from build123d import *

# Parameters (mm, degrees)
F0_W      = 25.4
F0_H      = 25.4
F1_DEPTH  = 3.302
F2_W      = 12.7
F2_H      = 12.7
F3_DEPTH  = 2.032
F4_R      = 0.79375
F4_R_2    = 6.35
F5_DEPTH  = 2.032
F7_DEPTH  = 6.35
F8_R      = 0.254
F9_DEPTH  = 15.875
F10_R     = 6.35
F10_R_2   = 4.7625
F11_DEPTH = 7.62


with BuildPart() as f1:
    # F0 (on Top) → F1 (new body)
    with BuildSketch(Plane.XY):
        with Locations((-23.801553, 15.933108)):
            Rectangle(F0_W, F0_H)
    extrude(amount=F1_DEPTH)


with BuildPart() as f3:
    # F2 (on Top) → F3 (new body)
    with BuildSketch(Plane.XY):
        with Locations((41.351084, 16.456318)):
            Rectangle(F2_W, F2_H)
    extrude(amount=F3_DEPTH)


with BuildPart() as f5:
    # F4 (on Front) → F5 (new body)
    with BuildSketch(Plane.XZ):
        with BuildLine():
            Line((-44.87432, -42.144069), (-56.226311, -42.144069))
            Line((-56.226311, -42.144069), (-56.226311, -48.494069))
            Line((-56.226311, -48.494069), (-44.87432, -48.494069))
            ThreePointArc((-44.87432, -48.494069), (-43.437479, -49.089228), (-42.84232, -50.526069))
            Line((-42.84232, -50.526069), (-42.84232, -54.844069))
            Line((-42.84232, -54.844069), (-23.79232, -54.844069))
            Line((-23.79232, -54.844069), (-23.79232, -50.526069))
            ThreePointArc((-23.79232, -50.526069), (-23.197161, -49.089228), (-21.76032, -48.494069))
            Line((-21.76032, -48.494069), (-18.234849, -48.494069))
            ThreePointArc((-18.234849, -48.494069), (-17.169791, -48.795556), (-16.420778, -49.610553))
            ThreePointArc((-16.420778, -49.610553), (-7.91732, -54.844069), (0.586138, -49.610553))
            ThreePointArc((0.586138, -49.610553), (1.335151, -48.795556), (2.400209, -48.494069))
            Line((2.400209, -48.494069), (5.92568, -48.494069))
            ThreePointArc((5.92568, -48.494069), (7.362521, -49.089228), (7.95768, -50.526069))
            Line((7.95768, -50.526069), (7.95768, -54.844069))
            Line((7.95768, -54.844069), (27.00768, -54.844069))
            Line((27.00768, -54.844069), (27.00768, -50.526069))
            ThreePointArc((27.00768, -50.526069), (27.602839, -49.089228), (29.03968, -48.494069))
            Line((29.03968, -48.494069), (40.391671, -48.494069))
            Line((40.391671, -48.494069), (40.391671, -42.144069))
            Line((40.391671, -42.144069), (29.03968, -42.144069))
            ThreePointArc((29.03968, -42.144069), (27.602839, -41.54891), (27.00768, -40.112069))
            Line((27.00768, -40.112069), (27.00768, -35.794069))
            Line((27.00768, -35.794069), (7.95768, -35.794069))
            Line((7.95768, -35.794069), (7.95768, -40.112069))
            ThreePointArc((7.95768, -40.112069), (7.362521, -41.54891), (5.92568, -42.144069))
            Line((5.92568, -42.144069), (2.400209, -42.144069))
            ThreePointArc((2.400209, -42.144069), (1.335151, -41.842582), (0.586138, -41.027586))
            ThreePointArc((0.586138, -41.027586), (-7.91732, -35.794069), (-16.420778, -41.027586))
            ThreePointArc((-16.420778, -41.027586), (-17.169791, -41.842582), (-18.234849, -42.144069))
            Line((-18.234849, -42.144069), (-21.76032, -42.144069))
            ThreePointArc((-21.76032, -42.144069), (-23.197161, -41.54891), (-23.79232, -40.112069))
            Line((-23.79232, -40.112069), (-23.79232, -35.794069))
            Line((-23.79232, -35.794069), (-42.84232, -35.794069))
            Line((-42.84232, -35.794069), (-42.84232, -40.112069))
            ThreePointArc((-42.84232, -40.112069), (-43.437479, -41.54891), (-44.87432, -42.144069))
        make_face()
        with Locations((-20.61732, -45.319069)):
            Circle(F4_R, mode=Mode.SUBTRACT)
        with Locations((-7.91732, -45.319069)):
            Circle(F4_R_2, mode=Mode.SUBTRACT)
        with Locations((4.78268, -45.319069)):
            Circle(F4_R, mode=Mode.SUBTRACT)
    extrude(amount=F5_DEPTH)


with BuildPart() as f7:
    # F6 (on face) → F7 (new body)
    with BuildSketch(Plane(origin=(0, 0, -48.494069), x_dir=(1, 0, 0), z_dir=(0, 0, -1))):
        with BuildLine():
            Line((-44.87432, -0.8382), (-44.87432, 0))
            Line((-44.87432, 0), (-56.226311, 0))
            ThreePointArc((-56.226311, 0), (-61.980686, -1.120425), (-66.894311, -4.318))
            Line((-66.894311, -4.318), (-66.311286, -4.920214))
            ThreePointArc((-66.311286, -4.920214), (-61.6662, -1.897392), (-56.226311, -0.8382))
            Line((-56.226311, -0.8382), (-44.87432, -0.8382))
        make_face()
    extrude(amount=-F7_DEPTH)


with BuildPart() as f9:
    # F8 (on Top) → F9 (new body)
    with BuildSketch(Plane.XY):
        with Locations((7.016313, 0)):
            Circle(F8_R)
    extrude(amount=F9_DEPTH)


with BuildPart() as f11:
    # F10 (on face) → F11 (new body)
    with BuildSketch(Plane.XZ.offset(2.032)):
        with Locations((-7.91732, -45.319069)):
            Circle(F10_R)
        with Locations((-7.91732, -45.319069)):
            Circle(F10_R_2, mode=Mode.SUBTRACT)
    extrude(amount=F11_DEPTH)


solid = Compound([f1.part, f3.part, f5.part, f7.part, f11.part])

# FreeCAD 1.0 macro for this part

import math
import FreeCAD as App
import Part
import Sketcher
from FreeCAD import Vector
Q = App.Units.Quantity

doc = App.newDocument("Part")
body = doc.addObject("PartDesign::Body", "Body")

sketch1 = body.newObject("Sketcher::SketchObject", "Sketch")
sketch1.AttachmentSupport = (doc.getObject("XY_Plane"), [""])
sketch1.MapMode = "FlatFace"
sketch1.addGeometry([
    Part.LineSegment(Vector(-36.501553, 28.633108, 0), Vector(-36.501553, 3.233108, 0)),
    Part.LineSegment(Vector(-36.501553, 3.233108, 0), Vector(-11.101553, 3.233108, 0)),
    Part.LineSegment(Vector(-11.101553, 3.233108, 0), Vector(-11.101553, 28.633108, 0)),
    Part.LineSegment(Vector(-11.101553, 28.633108, 0), Vector(-36.501553, 28.633108, 0)),
], False)
sketch1.addConstraint([
    Sketcher.Constraint("Coincident", 0, 2, 1, 1),
    Sketcher.Constraint("Coincident", 1, 2, 2, 1),
    Sketcher.Constraint("Coincident", 2, 2, 3, 1),
    Sketcher.Constraint("Coincident", 3, 2, 0, 1),
    Sketcher.Constraint("Vertical", 0),
    Sketcher.Constraint("Horizontal", 1),
    Sketcher.Constraint("Vertical", 2),
    Sketcher.Constraint("Horizontal", 3),
    Sketcher.Constraint("Equal", 3, 0),
    Sketcher.Constraint("DistanceX", 1, 1, 1, 2, Q("1 in")),
    Sketcher.Constraint("DistanceY", -1, 1, 0, 2, Q("3.233108 mm")),
    Sketcher.Constraint("DistanceX", 0, 2, -1, 1, Q("36.501553 mm")),
])
pad1 = body.newObject("PartDesign::Pad", "Pad")
pad1.Profile = sketch1
pad1.Length = Q("0.13 in")
body2 = doc.addObject("PartDesign::Body", "Body001")

sketch2 = body2.newObject("Sketcher::SketchObject", "Sketch001")
sketch2.AttachmentSupport = (doc.getObject("XY_Plane001"), [""])
sketch2.MapMode = "FlatFace"
sketch2.addGeometry([
    Part.LineSegment(Vector(35.001084, 22.806318, 0), Vector(35.001084, 10.106318, 0)),
    Part.LineSegment(Vector(35.001084, 10.106318, 0), Vector(47.701084, 10.106318, 0)),
    Part.LineSegment(Vector(47.701084, 10.106318, 0), Vector(47.701084, 22.806318, 0)),
    Part.LineSegment(Vector(47.701084, 22.806318, 0), Vector(35.001084, 22.806318, 0)),
], False)
sketch2.addConstraint([
    Sketcher.Constraint("Coincident", 0, 2, 1, 1),
    Sketcher.Constraint("Coincident", 1, 2, 2, 1),
    Sketcher.Constraint("Coincident", 2, 2, 3, 1),
    Sketcher.Constraint("Coincident", 3, 2, 0, 1),
    Sketcher.Constraint("Vertical", 0),
    Sketcher.Constraint("Horizontal", 1),
    Sketcher.Constraint("Vertical", 2),
    Sketcher.Constraint("Horizontal", 3),
    Sketcher.Constraint("Equal", 3, 0),
    Sketcher.Constraint("DistanceX", 1, 1, 1, 2, Q("0.5 in")),
    Sketcher.Constraint("DistanceY", -1, 1, 2, 2, Q("22.806318 mm")),
    Sketcher.Constraint("DistanceX", -1, 1, 0, 2, Q("35.001084 mm")),
])
pad2 = body2.newObject("PartDesign::Pad", "Pad001")
pad2.Profile = sketch2
pad2.Length = Q("0.08 in")
body3 = doc.addObject("PartDesign::Body", "Body002")

sketch3 = body3.newObject("Sketcher::SketchObject", "Sketch002")
sketch3.AttachmentSupport = (doc.getObject("XZ_Plane002"), [""])
sketch3.MapMode = "FlatFace"
sketch3.addGeometry([
    Part.LineSegment(Vector(-44.87432, -42.144069, 0), Vector(-56.226311, -42.144069, 0)),
    Part.LineSegment(Vector(-56.226311, -42.144069, 0), Vector(-56.226311, -48.494069, 0)),
    Part.LineSegment(Vector(-56.226311, -48.494069, 0), Vector(-44.87432, -48.494069, 0)),
    Part.ArcOfCircle(Part.Circle(Vector(-44.87432, -50.526069, 0), Vector(0, 0, 1), 2.032), math.radians(-0.000002), math.radians(90.000002)),
    Part.LineSegment(Vector(-42.84232, -50.526069, 0), Vector(-42.84232, -54.844069, 0)),
    Part.LineSegment(Vector(-42.84232, -54.844069, 0), Vector(-23.79232, -54.844069, 0)),
    Part.LineSegment(Vector(-23.79232, -54.844069, 0), Vector(-23.79232, -50.526069, 0)),
    Part.ArcOfCircle(Part.Circle(Vector(-21.76032, -50.526069, 0), Vector(0, 0, 1), 2.032), math.radians(89.999998), math.radians(180.000002)),
    Part.LineSegment(Vector(-21.76032, -48.494069, 0), Vector(-18.234849, -48.494069, 0)),
    Part.ArcOfCircle(Part.Circle(Vector(-18.234849, -50.526069, 0), Vector(0, 0, 1), 2.032), math.radians(26.778919), math.radians(90)),
    Part.ArcOfCircle(Part.Circle(Vector(-7.91732, -45.319068, 0), Vector(0, 0, 1), 9.525001), math.radians(-153.221052), math.radians(-26.778948)),
    Part.ArcOfCircle(Part.Circle(Vector(2.400209, -50.526069, 0), Vector(0, 0, 1), 2.032), math.radians(90), math.radians(153.221081)),
    Part.LineSegment(Vector(2.400209, -48.494069, 0), Vector(5.92568, -48.494069, 0)),
    Part.ArcOfCircle(Part.Circle(Vector(5.92568, -50.526069, 0), Vector(0, 0, 1), 2.032), math.radians(-0.000002), math.radians(90.000002)),
    Part.LineSegment(Vector(7.95768, -50.526069, 0), Vector(7.95768, -54.844069, 0)),
    Part.LineSegment(Vector(7.95768, -54.844069, 0), Vector(27.00768, -54.844069, 0)),
    Part.LineSegment(Vector(27.00768, -54.844069, 0), Vector(27.00768, -50.526069, 0)),
    Part.ArcOfCircle(Part.Circle(Vector(29.03968, -50.526069, 0), Vector(0, 0, 1), 2.032), math.radians(89.999998), math.radians(180.000002)),
    Part.LineSegment(Vector(29.03968, -48.494069, 0), Vector(40.391671, -48.494069, 0)),
    Part.LineSegment(Vector(40.391671, -48.494069, 0), Vector(40.391671, -42.144069, 0)),
    Part.LineSegment(Vector(40.391671, -42.144069, 0), Vector(29.03968, -42.144069, 0)),
    Part.ArcOfCircle(Part.Circle(Vector(29.03968, -40.112069, 0), Vector(0, 0, 1), 2.032), math.radians(179.999998), math.radians(270.000002)),
    Part.LineSegment(Vector(27.00768, -40.112069, 0), Vector(27.00768, -35.794069, 0)),
    Part.LineSegment(Vector(27.00768, -35.794069, 0), Vector(7.95768, -35.794069, 0)),
    Part.LineSegment(Vector(7.95768, -35.794069, 0), Vector(7.95768, -40.112069, 0)),
    Part.ArcOfCircle(Part.Circle(Vector(5.92568, -40.112069, 0), Vector(0, 0, 1), 2.032), math.radians(-90.000002), math.radians(0.000002)),
    Part.LineSegment(Vector(5.92568, -42.144069, 0), Vector(2.400209, -42.144069, 0)),
    Part.ArcOfCircle(Part.Circle(Vector(2.400209, -40.112068, 0), Vector(0, 0, 1), 2.032001), math.radians(-153.221023), math.radians(-90.000012)),
    Part.ArcOfCircle(Part.Circle(Vector(-7.91732, -45.319069, 0), Vector(0, 0, 1), 9.525), math.radians(26.778938), math.radians(153.221062)),
    Part.ArcOfCircle(Part.Circle(Vector(-18.234849, -40.112068, 0), Vector(0, 0, 1), 2.032001), math.radians(-89.999988), math.radians(-26.778977)),
    Part.LineSegment(Vector(-18.234849, -42.144069, 0), Vector(-21.76032, -42.144069, 0)),
    Part.ArcOfCircle(Part.Circle(Vector(-21.76032, -40.112069, 0), Vector(0, 0, 1), 2.032), math.radians(179.999998), math.radians(270.000002)),
    Part.LineSegment(Vector(-23.79232, -40.112069, 0), Vector(-23.79232, -35.794069, 0)),
    Part.LineSegment(Vector(-23.79232, -35.794069, 0), Vector(-42.84232, -35.794069, 0)),
    Part.LineSegment(Vector(-42.84232, -35.794069, 0), Vector(-42.84232, -40.112069, 0)),
    Part.ArcOfCircle(Part.Circle(Vector(-44.87432, -40.112069, 0), Vector(0, 0, 1), 2.032), math.radians(-90.000002), math.radians(0.000002)),
    Part.Circle(Vector(-20.61732, -45.319069, 0), Vector(0, 0, 1), 0.79375),
    Part.Circle(Vector(-7.91732, -45.319069, 0), Vector(0, 0, 1), 6.35),
    Part.Circle(Vector(4.78268, -45.319069, 0), Vector(0, 0, 1), 0.79375),
], False)
sketch3.addConstraint([
    Sketcher.Constraint("Coincident", 0, 2, 1, 1),
    Sketcher.Constraint("Coincident", 1, 2, 2, 1),
    Sketcher.Constraint("Tangent", 2, 2, 3, 2),
    Sketcher.Constraint("Tangent", 3, 1, 4, 1),
    Sketcher.Constraint("Coincident", 4, 2, 5, 1),
    Sketcher.Constraint("Coincident", 5, 2, 6, 1),
    Sketcher.Constraint("Tangent", 6, 2, 7, 2),
    Sketcher.Constraint("Tangent", 7, 1, 8, 1),
    Sketcher.Constraint("Tangent", 8, 2, 9, 2),
    Sketcher.Constraint("Tangent", 9, 1, 10, 1),
    Sketcher.Constraint("Tangent", 10, 2, 11, 2),
    Sketcher.Constraint("Tangent", 11, 1, 12, 1),
    Sketcher.Constraint("Tangent", 12, 2, 13, 2),
    Sketcher.Constraint("Tangent", 13, 1, 14, 1),
    Sketcher.Constraint("Coincident", 14, 2, 15, 1),
    Sketcher.Constraint("Coincident", 15, 2, 16, 1),
    Sketcher.Constraint("Tangent", 16, 2, 17, 2),
    Sketcher.Constraint("Tangent", 17, 1, 18, 1),
    Sketcher.Constraint("Coincident", 18, 2, 19, 1),
    Sketcher.Constraint("Coincident", 19, 2, 20, 1),
    Sketcher.Constraint("Tangent", 20, 2, 21, 2),
    Sketcher.Constraint("Tangent", 21, 1, 22, 1),
    Sketcher.Constraint("Coincident", 22, 2, 23, 1),
    Sketcher.Constraint("Coincident", 23, 2, 24, 1),
    Sketcher.Constraint("Tangent", 24, 2, 25, 2),
    Sketcher.Constraint("Tangent", 25, 1, 26, 1),
    Sketcher.Constraint("Tangent", 26, 2, 27, 2),
    Sketcher.Constraint("Tangent", 27, 1, 28, 1),
    Sketcher.Constraint("Tangent", 28, 2, 29, 2),
    Sketcher.Constraint("Tangent", 29, 1, 30, 1),
    Sketcher.Constraint("Tangent", 30, 2, 31, 2),
    Sketcher.Constraint("Tangent", 31, 1, 32, 1),
    Sketcher.Constraint("Coincident", 32, 2, 33, 1),
    Sketcher.Constraint("Coincident", 33, 2, 34, 1),
    Sketcher.Constraint("Tangent", 34, 2, 35, 2),
    Sketcher.Constraint("Tangent", 35, 1, 0, 1),
    Sketcher.Constraint("Horizontal", 0),
    Sketcher.Constraint("Vertical", 1),
    Sketcher.Constraint("Horizontal", 2),
    Sketcher.Constraint("Vertical", 4),
    Sketcher.Constraint("Horizontal", 5),
    Sketcher.Constraint("Vertical", 6),
    Sketcher.Constraint("Horizontal", 8),
    Sketcher.Constraint("Horizontal", 12),
    Sketcher.Constraint("Vertical", 14),
    Sketcher.Constraint("Horizontal", 15),
    Sketcher.Constraint("Vertical", 16),
    Sketcher.Constraint("Horizontal", 18),
    Sketcher.Constraint("Vertical", 19),
    Sketcher.Constraint("Horizontal", 20),
    Sketcher.Constraint("Vertical", 22),
    Sketcher.Constraint("Horizontal", 23),
    Sketcher.Constraint("Vertical", 24),
    Sketcher.Constraint("Horizontal", 26),
    Sketcher.Constraint("Horizontal", 30),
    Sketcher.Constraint("Vertical", 32),
    Sketcher.Constraint("Horizontal", 33),
    Sketcher.Constraint("Vertical", 34),
    Sketcher.Constraint("Coincident", 28, 3, 10, 3),
    Sketcher.Constraint("Coincident", 37, 3, 10, 3),
    Sketcher.Constraint("Equal", 3, 7),
    Sketcher.Constraint("Equal", 7, 9),
    Sketcher.Constraint("Equal", 9, 11),
    Sketcher.Constraint("Equal", 11, 13),
    Sketcher.Constraint("Equal", 13, 17),
    Sketcher.Constraint("Equal", 17, 21),
    Sketcher.Constraint("Equal", 21, 25),
    Sketcher.Constraint("Equal", 25, 27),
    Sketcher.Constraint("Equal", 10, 28),
    Sketcher.Constraint("Equal", 27, 29),
    Sketcher.Constraint("Equal", 29, 31),
    Sketcher.Constraint("Equal", 31, 35),
    Sketcher.Constraint("Equal", 36, 38),
    Sketcher.Constraint("Horizontal", 3, 3, 7, 3),
    Sketcher.Constraint("Horizontal", 9, 3, 11, 3),
    Sketcher.Constraint("Horizontal", 13, 3, 17, 3),
    Sketcher.Constraint("Horizontal", 21, 3, 25, 3),
    Sketcher.Constraint("Horizontal", 27, 3, 29, 3),
    Sketcher.Constraint("Horizontal", 31, 3, 35, 3),
    Sketcher.Constraint("Horizontal", 28, 3, 36, 3),
    Sketcher.Constraint("Horizontal", 37, 3, 38, 3),
    Sketcher.Constraint("Horizontal", 5, 2, 14, 2),
    Sketcher.Constraint("Horizontal", 23, 2, 32, 2),
    Sketcher.Constraint("Vertical", 17, 3, 21, 3),
    Sketcher.Constraint("Vertical", 13, 3, 25, 3),
    Sketcher.Constraint("Vertical", 11, 3, 27, 3),
    Sketcher.Constraint("Vertical", 7, 3, 31, 3),
    Sketcher.Constraint("Vertical", 3, 3, 35, 3),
    Sketcher.Constraint("Equal", 8, 12),
    Sketcher.Constraint("Equal", 5, 15),
    Sketcher.Constraint("Equal", 2, 18),
    Sketcher.Constraint("Equal", 16, 22),
    Sketcher.Constraint("Diameter", 37, Q("0.5 in")),
    Sketcher.Constraint("Radius", 3, Q("0.08 in")),
    Sketcher.Constraint("Diameter", 36, Q("0.0625 in")),
    Sketcher.Constraint("Radius", 10, Q("0.375 in")),
    Sketcher.Constraint("DistanceX", 3, 3, 13, 3, Q("2 in")),
    Sketcher.Constraint("DistanceX", 5, 1, 5, 2, Q("0.75 in")),
    Sketcher.Constraint("DistanceY", 1, 2, 1, 1, Q("0.25 in")),
    Sketcher.Constraint("DistanceY", 4, 2, 4, 1, Q("0.17 in")),
    Sketcher.Constraint("DistanceX", 36, 3, 28, 3, Q("0.5 in")),
    Sketcher.Constraint("DistanceX", 28, 3, 38, 3, Q("0.5 in")),
    Sketcher.Constraint("DistanceX", 0, 2, 0, 1, Q("11.351991 mm")),
    Sketcher.Constraint("DistanceX", 3, 3, -1, 1, Q("44.87432 mm")),
    Sketcher.Constraint("DistanceY", 3, 3, -1, 1, Q("50.526069 mm")),
])
pad3 = body3.newObject("PartDesign::Pad", "Pad002")
pad3.Profile = sketch3
pad3.Length = Q("0.08 in")
body4 = doc.addObject("PartDesign::Body", "Body003")

sketch4 = body4.newObject("Sketcher::SketchObject", "Sketch003")
sketch4.AttachmentSupport = (doc.getObject("XY_Plane003"), [""])
sketch4.MapMode = "FlatFace"
sketch4.AttachmentOffset = App.Placement(Vector(0, 0, -48.494069), App.Rotation())
sketch4.addGeometry([
    Part.LineSegment(Vector(-44.87432, 0.8382, 0), Vector(-44.87432, 0, 0)),
    Part.LineSegment(Vector(-44.87432, 0, 0), Vector(-56.226311, 0, 0)),
    Part.ArcOfCircle(Part.Circle(Vector(-56.226312, 15.337116, 0), Vector(0, 0, 1), 15.337116), math.radians(-134.072456), math.radians(-89.999998)),
    Part.LineSegment(Vector(-66.894311, 4.318, 0), Vector(-66.311286, 4.920214, 0)),
    Part.ArcOfCircle(Part.Circle(Vector(-56.226312, 15.337113, 0), Vector(0, 0, 1), 14.498913), math.radians(-134.072462), math.radians(-89.999995)),
    Part.LineSegment(Vector(-56.226311, 0.8382, 0), Vector(-44.87432, 0.8382, 0)),
], False)
sketch4.addConstraint([
    Sketcher.Constraint("Coincident", 0, 2, 1, 1),
    Sketcher.Constraint("Tangent", 1, 2, 2, 2),
    Sketcher.Constraint("Coincident", 2, 1, 3, 1),
    Sketcher.Constraint("Coincident", 3, 2, 4, 1),
    Sketcher.Constraint("Tangent", 4, 2, 5, 1),
    Sketcher.Constraint("Coincident", 5, 2, 0, 1),
    Sketcher.Constraint("Vertical", 0),
    Sketcher.Constraint("Horizontal", 1),
    Sketcher.Constraint("Horizontal", 5),
    Sketcher.Constraint("Coincident", 4, 3, 2, 3),
    Sketcher.Constraint("PointOnObject", 0, 2, -1),
    Sketcher.Constraint("DistanceY", 0, 2, 0, 1, Q("0.033 in")),
    Sketcher.Constraint("DistanceY", -1, 1, 2, 1, Q("0.17 in")),
    Sketcher.Constraint("DistanceX", 2, 1, 1, 2, Q("0.42 in")),
    Sketcher.Constraint("DistanceX", 1, 2, 1, 1, Q("11.351991 mm")),
    Sketcher.Constraint("DistanceY", 3, 2, 4, 3, Q("10.416899 mm")),
    Sketcher.Constraint("DistanceX", 2, 3, -1, 1, Q("56.226312 mm")),
])
pad4 = body4.newObject("PartDesign::Pad", "Pad003")
pad4.Profile = sketch4
pad4.Length = Q("0.25 in")
body5 = doc.addObject("PartDesign::Body", "Body004")

sketch5 = body5.newObject("Sketcher::SketchObject", "Sketch004")
sketch5.AttachmentSupport = (doc.getObject("XY_Plane004"), [""])
sketch5.MapMode = "FlatFace"
sketch5.addGeometry(Part.Circle(Vector(7.016313, 0, 0), Vector(0, 0, 1), 0.254), False)
sketch5.addConstraint([
    Sketcher.Constraint("PointOnObject", 0, 3, -1),
    Sketcher.Constraint("Diameter", 0, Q("0.02 in")),
    Sketcher.Constraint("DistanceX", -1, 1, 0, 3, Q("7.016313 mm")),
])
pad5 = body5.newObject("PartDesign::Pad", "Pad004")
pad5.Profile = sketch5
pad5.Length = Q("0.625 in")
body6 = doc.addObject("PartDesign::Body", "Body005")

sketch6 = body6.newObject("Sketcher::SketchObject", "Sketch005")
sketch6.AttachmentSupport = (doc.getObject("XZ_Plane005"), [""])
sketch6.MapMode = "FlatFace"
sketch6.AttachmentOffset = App.Placement(Vector(0, 0, 0.08 * 25.4), App.Rotation())
sketch6.addGeometry([
    Part.Circle(Vector(-7.91732, -45.319069, 0), Vector(0, 0, 1), 6.35),
    Part.Circle(Vector(-7.91732, -45.319069, 0), Vector(0, 0, 1), 4.7625),
], False)
sketch6.addConstraint([
    Sketcher.Constraint("Coincident", 1, 3, 0, 3),
    Sketcher.Constraint("Diameter", 0, Q("0.5 in")),
    Sketcher.Constraint("Diameter", 1, Q("0.375 in")),
    Sketcher.Constraint("DistanceX", 0, 3, -1, 1, Q("7.91732 mm")),
    Sketcher.Constraint("DistanceY", 0, 3, -1, 1, Q("45.319069 mm")),
])
pad6 = body6.newObject("PartDesign::Pad", "Pad005")
pad6.Profile = sketch6
pad6.Length = Q("0.3 in")
body5.Visibility = False

doc.recompute()
